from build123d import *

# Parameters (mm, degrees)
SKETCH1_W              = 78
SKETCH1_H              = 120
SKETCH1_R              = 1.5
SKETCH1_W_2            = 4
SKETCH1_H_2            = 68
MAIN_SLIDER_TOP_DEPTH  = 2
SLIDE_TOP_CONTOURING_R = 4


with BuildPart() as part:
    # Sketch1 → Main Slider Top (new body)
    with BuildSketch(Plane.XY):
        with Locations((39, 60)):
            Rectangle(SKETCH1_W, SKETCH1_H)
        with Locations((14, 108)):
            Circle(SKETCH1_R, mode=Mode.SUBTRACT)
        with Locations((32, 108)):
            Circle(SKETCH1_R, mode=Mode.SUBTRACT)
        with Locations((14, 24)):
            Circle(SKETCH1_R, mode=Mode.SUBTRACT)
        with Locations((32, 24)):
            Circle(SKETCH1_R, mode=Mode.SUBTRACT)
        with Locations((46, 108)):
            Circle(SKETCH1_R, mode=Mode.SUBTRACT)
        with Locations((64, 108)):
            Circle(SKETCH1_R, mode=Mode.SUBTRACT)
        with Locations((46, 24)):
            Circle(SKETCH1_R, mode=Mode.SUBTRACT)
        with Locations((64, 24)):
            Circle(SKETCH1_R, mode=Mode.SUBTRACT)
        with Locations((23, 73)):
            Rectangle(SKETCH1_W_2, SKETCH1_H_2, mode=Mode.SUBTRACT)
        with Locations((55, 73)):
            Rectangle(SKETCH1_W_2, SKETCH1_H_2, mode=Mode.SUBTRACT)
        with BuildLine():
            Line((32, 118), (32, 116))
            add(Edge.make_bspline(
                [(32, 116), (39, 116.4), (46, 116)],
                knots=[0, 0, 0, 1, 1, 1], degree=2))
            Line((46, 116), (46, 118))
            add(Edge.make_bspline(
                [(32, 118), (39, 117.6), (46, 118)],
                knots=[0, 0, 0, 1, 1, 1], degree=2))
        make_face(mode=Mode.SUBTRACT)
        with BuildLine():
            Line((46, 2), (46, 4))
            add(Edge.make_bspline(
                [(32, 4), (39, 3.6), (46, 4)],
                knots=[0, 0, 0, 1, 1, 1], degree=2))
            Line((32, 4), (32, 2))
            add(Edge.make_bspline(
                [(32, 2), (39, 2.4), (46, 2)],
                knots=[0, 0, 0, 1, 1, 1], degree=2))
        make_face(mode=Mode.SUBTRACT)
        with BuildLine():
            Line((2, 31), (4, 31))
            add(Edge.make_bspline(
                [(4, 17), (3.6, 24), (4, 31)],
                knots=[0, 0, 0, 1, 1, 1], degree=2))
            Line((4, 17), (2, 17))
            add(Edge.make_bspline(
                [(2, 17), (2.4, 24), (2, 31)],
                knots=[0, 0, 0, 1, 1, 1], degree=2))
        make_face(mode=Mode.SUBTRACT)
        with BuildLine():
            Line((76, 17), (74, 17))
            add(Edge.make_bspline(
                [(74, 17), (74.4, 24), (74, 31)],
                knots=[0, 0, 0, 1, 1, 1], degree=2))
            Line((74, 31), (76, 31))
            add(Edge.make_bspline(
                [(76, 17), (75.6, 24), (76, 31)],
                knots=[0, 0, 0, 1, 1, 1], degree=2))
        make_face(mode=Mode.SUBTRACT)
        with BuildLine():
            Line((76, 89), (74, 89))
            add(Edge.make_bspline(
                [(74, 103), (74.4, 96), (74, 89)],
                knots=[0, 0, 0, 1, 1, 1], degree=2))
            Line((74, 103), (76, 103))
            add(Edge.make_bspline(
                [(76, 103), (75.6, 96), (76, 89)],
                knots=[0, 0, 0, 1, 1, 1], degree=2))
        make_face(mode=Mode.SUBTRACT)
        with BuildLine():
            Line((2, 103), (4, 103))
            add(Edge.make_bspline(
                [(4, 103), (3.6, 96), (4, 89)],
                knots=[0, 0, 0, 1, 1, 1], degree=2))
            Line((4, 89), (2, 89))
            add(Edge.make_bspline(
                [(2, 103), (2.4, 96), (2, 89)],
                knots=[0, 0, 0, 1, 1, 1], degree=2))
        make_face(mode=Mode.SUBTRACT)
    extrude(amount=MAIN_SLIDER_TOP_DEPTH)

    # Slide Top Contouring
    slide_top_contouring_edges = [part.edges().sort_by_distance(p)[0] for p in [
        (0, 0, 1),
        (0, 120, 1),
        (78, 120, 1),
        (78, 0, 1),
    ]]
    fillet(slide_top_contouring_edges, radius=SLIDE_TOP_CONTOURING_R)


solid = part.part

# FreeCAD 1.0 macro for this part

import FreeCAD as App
import Part
import Sketcher
from FreeCAD import Vector
Q = App.Units.Quantity


def edges_at(feature, points):
    """Names of the edges that pass closest to the given points."""
    edges = feature.Shape.Edges
    near = lambda p: min(range(len(edges)), key=lambda i: edges[i].distToShape(Part.Vertex(*p))[0])
    return sorted({f"Edge{near(p) + 1}" for p in points})

doc = App.newDocument("Part")
params = doc.addObject("Spreadsheet::Sheet", "Params")
for row, (alias, value) in enumerate([
    ("sketch1_diameter", "3 mm"),
    ("sketch1_width", "78 mm"),
    ("sketch1_width2", "4 mm"),
    ("sketch1_height", "120 mm"),
    ("sketch1_height2", "68 mm"),
    ("pad1_length", "2 mm"),
    ("fillet_radius", "4 mm"),
], start=1):
    params.set(f"A{row}", alias)
    params.set(f"B{row}", "=" + value)
    params.setAlias(f"B{row}", alias)

body = doc.addObject("PartDesign::Body", "Body")

sketch1 = doc.addObject("Sketcher::SketchObject", "Sketch")
body.addObject(sketch1)
sketch1.AttachmentSupport = (doc.XY_Plane, [""])
sketch1.MapMode = "FlatFace"
sketch1.addGeometry(Part.LineSegment(Vector(0, 120, 0), Vector(0, 0, 0)), False)
sketch1.addGeometry(Part.LineSegment(Vector(0, 0, 0), Vector(78, 0, 0)), False)
sketch1.addGeometry(Part.LineSegment(Vector(78, 0, 0), Vector(78, 120, 0)), False)
sketch1.addGeometry(Part.LineSegment(Vector(78, 120, 0), Vector(0, 120, 0)), False)
sketch1.addGeometry(Part.BSplineCurve([Vector(2, 17, 0), Vector(2.4, 24, 0), Vector(2, 31, 0)], [3, 3], [0, 1], False, 2, [1, 1, 1], False), False)
sketch1.addGeometry(Part.LineSegment(Vector(2, 31, 0), Vector(4, 31, 0)), False)
sketch1.addGeometry(Part.BSplineCurve([Vector(4, 17, 0), Vector(3.6, 24, 0), Vector(4, 31, 0)], [3, 3], [0, 1], False, 2, [1, 1, 1], False), False)
sketch1.addGeometry(Part.LineSegment(Vector(4, 17, 0), Vector(2, 17, 0)), False)
sketch1.addGeometry(Part.Circle(Vector(14, 24, 0), Vector(0, 0, 1), 1.5), False)
sketch1.addGeometry(Part.Circle(Vector(32, 24, 0), Vector(0, 0, 1), 1.5), False)
sketch1.addGeometry(Part.LineSegment(Vector(46, 4, 0), Vector(46, 2, 0)), False)
sketch1.addGeometry(Part.BSplineCurve([Vector(32, 2, 0), Vector(39, 2.4, 0), Vector(46, 2, 0)], [3, 3], [0, 1], False, 2, [1, 1, 1], False), False)
sketch1.addGeometry(Part.LineSegment(Vector(32, 2, 0), Vector(32, 4, 0)), False)
sketch1.addGeometry(Part.BSplineCurve([Vector(32, 4, 0), Vector(39, 3.6, 0), Vector(46, 4, 0)], [3, 3], [0, 1], False, 2, [1, 1, 1], False), False)
sketch1.addGeometry(Part.Circle(Vector(46, 24, 0), Vector(0, 0, 1), 1.5), False)
sketch1.addGeometry(Part.Circle(Vector(64, 24, 0), Vector(0, 0, 1), 1.5), False)
sketch1.addGeometry(Part.BSplineCurve([Vector(76, 17, 0), Vector(75.6, 24, 0), Vector(76, 31, 0)], [3, 3], [0, 1], False, 2, [1, 1, 1], False), False)
sketch1.addGeometry(Part.LineSegment(Vector(76, 17, 0), Vector(74, 17, 0)), False)
sketch1.addGeometry(Part.BSplineCurve([Vector(74, 17, 0), Vector(74.4, 24, 0), Vector(74, 31, 0)], [3, 3], [0, 1], False, 2, [1, 1, 1], False), False)
sketch1.addGeometry(Part.LineSegment(Vector(74, 31, 0), Vector(76, 31, 0)), False)
sketch1.addGeometry(Part.LineSegment(Vector(25, 39, 0), Vector(21, 39, 0)), False)
sketch1.addGeometry(Part.LineSegment(Vector(21, 39, 0), Vector(21, 107, 0)), False)
sketch1.addGeometry(Part.LineSegment(Vector(21, 107, 0), Vector(25, 107, 0)), False)
sketch1.addGeometry(Part.LineSegment(Vector(25, 107, 0), Vector(25, 39, 0)), False)
sketch1.addGeometry(Part.BSplineCurve([Vector(2, 103, 0), Vector(2.4, 96, 0), Vector(2, 89, 0)], [3, 3], [0, 1], False, 2, [1, 1, 1], False), False)
sketch1.addGeometry(Part.LineSegment(Vector(2, 103, 0), Vector(4, 103, 0)), False)
sketch1.addGeometry(Part.BSplineCurve([Vector(4, 103, 0), Vector(3.6, 96, 0), Vector(4, 89, 0)], [3, 3], [0, 1], False, 2, [1, 1, 1], False), False)
sketch1.addGeometry(Part.LineSegment(Vector(4, 89, 0), Vector(2, 89, 0)), False)
sketch1.addGeometry(Part.Circle(Vector(14, 108, 0), Vector(0, 0, 1), 1.5), False)
sketch1.addGeometry(Part.Circle(Vector(32, 108, 0), Vector(0, 0, 1), 1.5), False)
sketch1.addGeometry(Part.LineSegment(Vector(57, 39, 0), Vector(53, 39, 0)), False)
sketch1.addGeometry(Part.LineSegment(Vector(53, 39, 0), Vector(53, 107, 0)), False)
sketch1.addGeometry(Part.LineSegment(Vector(53, 107, 0), Vector(57, 107, 0)), False)
sketch1.addGeometry(Part.LineSegment(Vector(57, 107, 0), Vector(57, 39, 0)), False)
sketch1.addGeometry(Part.Circle(Vector(46, 108, 0), Vector(0, 0, 1), 1.5), False)
sketch1.addGeometry(Part.LineSegment(Vector(32, 116, 0), Vector(32, 118, 0)), False)
sketch1.addGeometry(Part.BSplineCurve([Vector(32, 118, 0), Vector(39, 117.6, 0), Vector(46, 118, 0)], [3, 3], [0, 1], False, 2, [1, 1, 1], False), False)
sketch1.addGeometry(Part.LineSegment(Vector(46, 118, 0), Vector(46, 116, 0)), False)
sketch1.addGeometry(Part.BSplineCurve([Vector(32, 116, 0), Vector(39, 116.4, 0), Vector(46, 116, 0)], [3, 3], [0, 1], False, 2, [1, 1, 1], False), False)
sketch1.addGeometry(Part.BSplineCurve([Vector(76, 103, 0), Vector(75.6, 96, 0), Vector(76, 89, 0)], [3, 3], [0, 1], False, 2, [1, 1, 1], False), False)
sketch1.addGeometry(Part.LineSegment(Vector(76, 89, 0), Vector(74, 89, 0)), False)
sketch1.addGeometry(Part.BSplineCurve([Vector(74, 103, 0), Vector(74.4, 96, 0), Vector(74, 89, 0)], [3, 3], [0, 1], False, 2, [1, 1, 1], False), False)
sketch1.addGeometry(Part.LineSegment(Vector(74, 103, 0), Vector(76, 103, 0)), False)
sketch1.addGeometry(Part.Circle(Vector(64, 108, 0), Vector(0, 0, 1), 1.5), False)
sketch1.addConstraint(Sketcher.Constraint("Block", 4))
sketch1.addConstraint(Sketcher.Constraint("Block", 6))
sketch1.addConstraint(Sketcher.Constraint("Block", 11))
sketch1.addConstraint(Sketcher.Constraint("Block", 13))
sketch1.addConstraint(Sketcher.Constraint("Block", 16))
sketch1.addConstraint(Sketcher.Constraint("Block", 18))
sketch1.addConstraint(Sketcher.Constraint("Block", 24))
sketch1.addConstraint(Sketcher.Constraint("Block", 26))
sketch1.addConstraint(Sketcher.Constraint("Block", 36))
sketch1.addConstraint(Sketcher.Constraint("Block", 38))
sketch1.addConstraint(Sketcher.Constraint("Block", 39))
sketch1.addConstraint(Sketcher.Constraint("Block", 41))
sketch1.addConstraint(Sketcher.Constraint("Coincident", 0, 2, 1, 1))
sketch1.addConstraint(Sketcher.Constraint("Coincident", 1, 2, 2, 1))
sketch1.addConstraint(Sketcher.Constraint("Coincident", 2, 2, 3, 1))
sketch1.addConstraint(Sketcher.Constraint("Coincident", 3, 2, 0, 1))
sketch1.addConstraint(Sketcher.Constraint("Coincident", 4, 2, 5, 1))
sketch1.addConstraint(Sketcher.Constraint("Coincident", 5, 2, 6, 2))
sketch1.addConstraint(Sketcher.Constraint("Coincident", 6, 1, 7, 1))
sketch1.addConstraint(Sketcher.Constraint("Coincident", 7, 2, 4, 1))
sketch1.addConstraint(Sketcher.Constraint("Coincident", 10, 2, 11, 2))
sketch1.addConstraint(Sketcher.Constraint("Coincident", 11, 1, 12, 1))
sketch1.addConstraint(Sketcher.Constraint("Coincident", 12, 2, 13, 1))
sketch1.addConstraint(Sketcher.Constraint("Coincident", 13, 2, 10, 1))
sketch1.addConstraint(Sketcher.Constraint("Coincident", 16, 1, 17, 1))
sketch1.addConstraint(Sketcher.Constraint("Coincident", 17, 2, 18, 1))
sketch1.addConstraint(Sketcher.Constraint("Coincident", 18, 2, 19, 1))
sketch1.addConstraint(Sketcher.Constraint("Coincident", 19, 2, 16, 2))
sketch1.addConstraint(Sketcher.Constraint("Coincident", 20, 2, 21, 1))
sketch1.addConstraint(Sketcher.Constraint("Coincident", 21, 2, 22, 1))
sketch1.addConstraint(Sketcher.Constraint("Coincident", 22, 2, 23, 1))
sketch1.addConstraint(Sketcher.Constraint("Coincident", 23, 2, 20, 1))
sketch1.addConstraint(Sketcher.Constraint("Coincident", 24, 1, 25, 1))
sketch1.addConstraint(Sketcher.Constraint("Coincident", 25, 2, 26, 1))
sketch1.addConstraint(Sketcher.Constraint("Coincident", 26, 2, 27, 1))
sketch1.addConstraint(Sketcher.Constraint("Coincident", 27, 2, 24, 2))
sketch1.addConstraint(Sketcher.Constraint("Coincident", 30, 2, 31, 1))
sketch1.addConstraint(Sketcher.Constraint("Coincident", 31, 2, 32, 1))
sketch1.addConstraint(Sketcher.Constraint("Coincident", 32, 2, 33, 1))
sketch1.addConstraint(Sketcher.Constraint("Coincident", 33, 2, 30, 1))
sketch1.addConstraint(Sketcher.Constraint("Coincident", 35, 2, 36, 1))
sketch1.addConstraint(Sketcher.Constraint("Coincident", 36, 2, 37, 1))
sketch1.addConstraint(Sketcher.Constraint("Coincident", 37, 2, 38, 2))
sketch1.addConstraint(Sketcher.Constraint("Coincident", 38, 1, 35, 1))
sketch1.addConstraint(Sketcher.Constraint("Coincident", 39, 2, 40, 1))
sketch1.addConstraint(Sketcher.Constraint("Coincident", 40, 2, 41, 2))
sketch1.addConstraint(Sketcher.Constraint("Coincident", 41, 1, 42, 1))
sketch1.addConstraint(Sketcher.Constraint("Coincident", 42, 2, 39, 1))
sketch1.addConstraint(Sketcher.Constraint("Vertical", 0))
sketch1.addConstraint(Sketcher.Constraint("Horizontal", 1))
sketch1.addConstraint(Sketcher.Constraint("Vertical", 2))
sketch1.addConstraint(Sketcher.Constraint("Horizontal", 3))
sketch1.addConstraint(Sketcher.Constraint("Horizontal", 20))
sketch1.addConstraint(Sketcher.Constraint("Vertical", 21))
sketch1.addConstraint(Sketcher.Constraint("Horizontal", 22))
sketch1.addConstraint(Sketcher.Constraint("Vertical", 23))
sketch1.addConstraint(Sketcher.Constraint("Horizontal", 30))
sketch1.addConstraint(Sketcher.Constraint("Vertical", 31))
sketch1.addConstraint(Sketcher.Constraint("Horizontal", 32))
sketch1.addConstraint(Sketcher.Constraint("Vertical", 33))
sketch1.addConstraint(Sketcher.Constraint("Coincident", 0, 2, -1, 1))
sketch1.addConstraint(Sketcher.Constraint("Equal", 8, 9))
sketch1.addConstraint(Sketcher.Constraint("Equal", 9, 14))
sketch1.addConstraint(Sketcher.Constraint("Equal", 14, 15))
sketch1.addConstraint(Sketcher.Constraint("Equal", 15, 28))
sketch1.addConstraint(Sketcher.Constraint("Equal", 28, 29))
sketch1.addConstraint(Sketcher.Constraint("Equal", 29, 34))
sketch1.addConstraint(Sketcher.Constraint("Equal", 34, 43))
sketch1.addConstraint(Sketcher.Constraint("Horizontal", 8, 3, 9, 3))
sketch1.addConstraint(Sketcher.Constraint("Horizontal", 9, 3, 14, 3))
sketch1.addConstraint(Sketcher.Constraint("Horizontal", 14, 3, 15, 3))
sketch1.addConstraint(Sketcher.Constraint("Horizontal", 28, 3, 29, 3))
sketch1.addConstraint(Sketcher.Constraint("Horizontal", 29, 3, 34, 3))
sketch1.addConstraint(Sketcher.Constraint("Horizontal", 34, 3, 43, 3))
sketch1.addConstraint(Sketcher.Constraint("Horizontal", 23, 2, 30, 2))
sketch1.addConstraint(Sketcher.Constraint("Horizontal", 22, 2, 31, 2))
sketch1.addConstraint(Sketcher.Constraint("Vertical", 8, 3, 28, 3))
sketch1.addConstraint(Sketcher.Constraint("Vertical", 9, 3, 29, 3))
sketch1.addConstraint(Sketcher.Constraint("Vertical", 14, 3, 34, 3))
sketch1.addConstraint(Sketcher.Constraint("Vertical", 15, 3, 43, 3))
sketch1.addConstraint(Sketcher.Constraint("Vertical", 34, 3, 10, 2))
sketch1.addConstraint(Sketcher.Constraint("Vertical", 29, 3, 12, 2))
sketch1.addConstraint(Sketcher.Constraint("Equal", 22, 30))
sketch1.addConstraint(Sketcher.Constraint("Diameter", 8, Q("3 mm")))
sketch1.addConstraint(Sketcher.Constraint("DistanceX", 1, 1, 1, 2, Q("78 mm")))
sketch1.addConstraint(Sketcher.Constraint("DistanceX", 20, 2, 20, 1, Q("4 mm")))
sketch1.addConstraint(Sketcher.Constraint("DistanceY", 0, 2, 0, 1, Q("120 mm")))
sketch1.addConstraint(Sketcher.Constraint("DistanceY", 21, 1, 21, 2, Q("68 mm")))
sketch1.addConstraint(Sketcher.Constraint("DistanceX", -1, 1, 8, 3, Q("14 mm")))
sketch1.addConstraint(Sketcher.Constraint("DistanceY", -1, 1, 8, 3, Q("24 mm")))
sketch1.addConstraint(Sketcher.Constraint("DistanceX", -1, 1, 15, 3, Q("64 mm")))
sketch1.addConstraint(Sketcher.Constraint("DistanceY", -1, 1, 28, 3, Q("108 mm")))
sketch1.addConstraint(Sketcher.Constraint("DistanceX", -1, 1, 20, 2, Q("21 mm")))
sketch1.addConstraint(Sketcher.Constraint("DistanceY", -1, 1, 20, 2, Q("39 mm")))
sketch1.addConstraint(Sketcher.Constraint("DistanceX", -1, 1, 30, 2, Q("53 mm")))
sketch1.setExpression("Constraints[83]", "Params.sketch1_diameter")
sketch1.setExpression("Constraints[84]", "Params.sketch1_width")
sketch1.setExpression("Constraints[85]", "Params.sketch1_width2")
sketch1.setExpression("Constraints[86]", "Params.sketch1_height")
sketch1.setExpression("Constraints[87]", "Params.sketch1_height2")
pad1 = doc.addObject("PartDesign::Pad", "Pad")
body.addObject(pad1)
pad1.Profile = sketch1
pad1.setExpression("Length", "Params.pad1_length")
doc.recompute()

fillet = doc.addObject("PartDesign::Fillet", "Fillet")
body.addObject(fillet)
fillet.Base = (pad1, edges_at(pad1, [
    (0, 0, 1),
    (0, 120, 1),
    (78, 120, 1),
    (78, 0, 1),
]))
fillet.setExpression("Radius", "Params.fillet_radius")

doc.recompute()
